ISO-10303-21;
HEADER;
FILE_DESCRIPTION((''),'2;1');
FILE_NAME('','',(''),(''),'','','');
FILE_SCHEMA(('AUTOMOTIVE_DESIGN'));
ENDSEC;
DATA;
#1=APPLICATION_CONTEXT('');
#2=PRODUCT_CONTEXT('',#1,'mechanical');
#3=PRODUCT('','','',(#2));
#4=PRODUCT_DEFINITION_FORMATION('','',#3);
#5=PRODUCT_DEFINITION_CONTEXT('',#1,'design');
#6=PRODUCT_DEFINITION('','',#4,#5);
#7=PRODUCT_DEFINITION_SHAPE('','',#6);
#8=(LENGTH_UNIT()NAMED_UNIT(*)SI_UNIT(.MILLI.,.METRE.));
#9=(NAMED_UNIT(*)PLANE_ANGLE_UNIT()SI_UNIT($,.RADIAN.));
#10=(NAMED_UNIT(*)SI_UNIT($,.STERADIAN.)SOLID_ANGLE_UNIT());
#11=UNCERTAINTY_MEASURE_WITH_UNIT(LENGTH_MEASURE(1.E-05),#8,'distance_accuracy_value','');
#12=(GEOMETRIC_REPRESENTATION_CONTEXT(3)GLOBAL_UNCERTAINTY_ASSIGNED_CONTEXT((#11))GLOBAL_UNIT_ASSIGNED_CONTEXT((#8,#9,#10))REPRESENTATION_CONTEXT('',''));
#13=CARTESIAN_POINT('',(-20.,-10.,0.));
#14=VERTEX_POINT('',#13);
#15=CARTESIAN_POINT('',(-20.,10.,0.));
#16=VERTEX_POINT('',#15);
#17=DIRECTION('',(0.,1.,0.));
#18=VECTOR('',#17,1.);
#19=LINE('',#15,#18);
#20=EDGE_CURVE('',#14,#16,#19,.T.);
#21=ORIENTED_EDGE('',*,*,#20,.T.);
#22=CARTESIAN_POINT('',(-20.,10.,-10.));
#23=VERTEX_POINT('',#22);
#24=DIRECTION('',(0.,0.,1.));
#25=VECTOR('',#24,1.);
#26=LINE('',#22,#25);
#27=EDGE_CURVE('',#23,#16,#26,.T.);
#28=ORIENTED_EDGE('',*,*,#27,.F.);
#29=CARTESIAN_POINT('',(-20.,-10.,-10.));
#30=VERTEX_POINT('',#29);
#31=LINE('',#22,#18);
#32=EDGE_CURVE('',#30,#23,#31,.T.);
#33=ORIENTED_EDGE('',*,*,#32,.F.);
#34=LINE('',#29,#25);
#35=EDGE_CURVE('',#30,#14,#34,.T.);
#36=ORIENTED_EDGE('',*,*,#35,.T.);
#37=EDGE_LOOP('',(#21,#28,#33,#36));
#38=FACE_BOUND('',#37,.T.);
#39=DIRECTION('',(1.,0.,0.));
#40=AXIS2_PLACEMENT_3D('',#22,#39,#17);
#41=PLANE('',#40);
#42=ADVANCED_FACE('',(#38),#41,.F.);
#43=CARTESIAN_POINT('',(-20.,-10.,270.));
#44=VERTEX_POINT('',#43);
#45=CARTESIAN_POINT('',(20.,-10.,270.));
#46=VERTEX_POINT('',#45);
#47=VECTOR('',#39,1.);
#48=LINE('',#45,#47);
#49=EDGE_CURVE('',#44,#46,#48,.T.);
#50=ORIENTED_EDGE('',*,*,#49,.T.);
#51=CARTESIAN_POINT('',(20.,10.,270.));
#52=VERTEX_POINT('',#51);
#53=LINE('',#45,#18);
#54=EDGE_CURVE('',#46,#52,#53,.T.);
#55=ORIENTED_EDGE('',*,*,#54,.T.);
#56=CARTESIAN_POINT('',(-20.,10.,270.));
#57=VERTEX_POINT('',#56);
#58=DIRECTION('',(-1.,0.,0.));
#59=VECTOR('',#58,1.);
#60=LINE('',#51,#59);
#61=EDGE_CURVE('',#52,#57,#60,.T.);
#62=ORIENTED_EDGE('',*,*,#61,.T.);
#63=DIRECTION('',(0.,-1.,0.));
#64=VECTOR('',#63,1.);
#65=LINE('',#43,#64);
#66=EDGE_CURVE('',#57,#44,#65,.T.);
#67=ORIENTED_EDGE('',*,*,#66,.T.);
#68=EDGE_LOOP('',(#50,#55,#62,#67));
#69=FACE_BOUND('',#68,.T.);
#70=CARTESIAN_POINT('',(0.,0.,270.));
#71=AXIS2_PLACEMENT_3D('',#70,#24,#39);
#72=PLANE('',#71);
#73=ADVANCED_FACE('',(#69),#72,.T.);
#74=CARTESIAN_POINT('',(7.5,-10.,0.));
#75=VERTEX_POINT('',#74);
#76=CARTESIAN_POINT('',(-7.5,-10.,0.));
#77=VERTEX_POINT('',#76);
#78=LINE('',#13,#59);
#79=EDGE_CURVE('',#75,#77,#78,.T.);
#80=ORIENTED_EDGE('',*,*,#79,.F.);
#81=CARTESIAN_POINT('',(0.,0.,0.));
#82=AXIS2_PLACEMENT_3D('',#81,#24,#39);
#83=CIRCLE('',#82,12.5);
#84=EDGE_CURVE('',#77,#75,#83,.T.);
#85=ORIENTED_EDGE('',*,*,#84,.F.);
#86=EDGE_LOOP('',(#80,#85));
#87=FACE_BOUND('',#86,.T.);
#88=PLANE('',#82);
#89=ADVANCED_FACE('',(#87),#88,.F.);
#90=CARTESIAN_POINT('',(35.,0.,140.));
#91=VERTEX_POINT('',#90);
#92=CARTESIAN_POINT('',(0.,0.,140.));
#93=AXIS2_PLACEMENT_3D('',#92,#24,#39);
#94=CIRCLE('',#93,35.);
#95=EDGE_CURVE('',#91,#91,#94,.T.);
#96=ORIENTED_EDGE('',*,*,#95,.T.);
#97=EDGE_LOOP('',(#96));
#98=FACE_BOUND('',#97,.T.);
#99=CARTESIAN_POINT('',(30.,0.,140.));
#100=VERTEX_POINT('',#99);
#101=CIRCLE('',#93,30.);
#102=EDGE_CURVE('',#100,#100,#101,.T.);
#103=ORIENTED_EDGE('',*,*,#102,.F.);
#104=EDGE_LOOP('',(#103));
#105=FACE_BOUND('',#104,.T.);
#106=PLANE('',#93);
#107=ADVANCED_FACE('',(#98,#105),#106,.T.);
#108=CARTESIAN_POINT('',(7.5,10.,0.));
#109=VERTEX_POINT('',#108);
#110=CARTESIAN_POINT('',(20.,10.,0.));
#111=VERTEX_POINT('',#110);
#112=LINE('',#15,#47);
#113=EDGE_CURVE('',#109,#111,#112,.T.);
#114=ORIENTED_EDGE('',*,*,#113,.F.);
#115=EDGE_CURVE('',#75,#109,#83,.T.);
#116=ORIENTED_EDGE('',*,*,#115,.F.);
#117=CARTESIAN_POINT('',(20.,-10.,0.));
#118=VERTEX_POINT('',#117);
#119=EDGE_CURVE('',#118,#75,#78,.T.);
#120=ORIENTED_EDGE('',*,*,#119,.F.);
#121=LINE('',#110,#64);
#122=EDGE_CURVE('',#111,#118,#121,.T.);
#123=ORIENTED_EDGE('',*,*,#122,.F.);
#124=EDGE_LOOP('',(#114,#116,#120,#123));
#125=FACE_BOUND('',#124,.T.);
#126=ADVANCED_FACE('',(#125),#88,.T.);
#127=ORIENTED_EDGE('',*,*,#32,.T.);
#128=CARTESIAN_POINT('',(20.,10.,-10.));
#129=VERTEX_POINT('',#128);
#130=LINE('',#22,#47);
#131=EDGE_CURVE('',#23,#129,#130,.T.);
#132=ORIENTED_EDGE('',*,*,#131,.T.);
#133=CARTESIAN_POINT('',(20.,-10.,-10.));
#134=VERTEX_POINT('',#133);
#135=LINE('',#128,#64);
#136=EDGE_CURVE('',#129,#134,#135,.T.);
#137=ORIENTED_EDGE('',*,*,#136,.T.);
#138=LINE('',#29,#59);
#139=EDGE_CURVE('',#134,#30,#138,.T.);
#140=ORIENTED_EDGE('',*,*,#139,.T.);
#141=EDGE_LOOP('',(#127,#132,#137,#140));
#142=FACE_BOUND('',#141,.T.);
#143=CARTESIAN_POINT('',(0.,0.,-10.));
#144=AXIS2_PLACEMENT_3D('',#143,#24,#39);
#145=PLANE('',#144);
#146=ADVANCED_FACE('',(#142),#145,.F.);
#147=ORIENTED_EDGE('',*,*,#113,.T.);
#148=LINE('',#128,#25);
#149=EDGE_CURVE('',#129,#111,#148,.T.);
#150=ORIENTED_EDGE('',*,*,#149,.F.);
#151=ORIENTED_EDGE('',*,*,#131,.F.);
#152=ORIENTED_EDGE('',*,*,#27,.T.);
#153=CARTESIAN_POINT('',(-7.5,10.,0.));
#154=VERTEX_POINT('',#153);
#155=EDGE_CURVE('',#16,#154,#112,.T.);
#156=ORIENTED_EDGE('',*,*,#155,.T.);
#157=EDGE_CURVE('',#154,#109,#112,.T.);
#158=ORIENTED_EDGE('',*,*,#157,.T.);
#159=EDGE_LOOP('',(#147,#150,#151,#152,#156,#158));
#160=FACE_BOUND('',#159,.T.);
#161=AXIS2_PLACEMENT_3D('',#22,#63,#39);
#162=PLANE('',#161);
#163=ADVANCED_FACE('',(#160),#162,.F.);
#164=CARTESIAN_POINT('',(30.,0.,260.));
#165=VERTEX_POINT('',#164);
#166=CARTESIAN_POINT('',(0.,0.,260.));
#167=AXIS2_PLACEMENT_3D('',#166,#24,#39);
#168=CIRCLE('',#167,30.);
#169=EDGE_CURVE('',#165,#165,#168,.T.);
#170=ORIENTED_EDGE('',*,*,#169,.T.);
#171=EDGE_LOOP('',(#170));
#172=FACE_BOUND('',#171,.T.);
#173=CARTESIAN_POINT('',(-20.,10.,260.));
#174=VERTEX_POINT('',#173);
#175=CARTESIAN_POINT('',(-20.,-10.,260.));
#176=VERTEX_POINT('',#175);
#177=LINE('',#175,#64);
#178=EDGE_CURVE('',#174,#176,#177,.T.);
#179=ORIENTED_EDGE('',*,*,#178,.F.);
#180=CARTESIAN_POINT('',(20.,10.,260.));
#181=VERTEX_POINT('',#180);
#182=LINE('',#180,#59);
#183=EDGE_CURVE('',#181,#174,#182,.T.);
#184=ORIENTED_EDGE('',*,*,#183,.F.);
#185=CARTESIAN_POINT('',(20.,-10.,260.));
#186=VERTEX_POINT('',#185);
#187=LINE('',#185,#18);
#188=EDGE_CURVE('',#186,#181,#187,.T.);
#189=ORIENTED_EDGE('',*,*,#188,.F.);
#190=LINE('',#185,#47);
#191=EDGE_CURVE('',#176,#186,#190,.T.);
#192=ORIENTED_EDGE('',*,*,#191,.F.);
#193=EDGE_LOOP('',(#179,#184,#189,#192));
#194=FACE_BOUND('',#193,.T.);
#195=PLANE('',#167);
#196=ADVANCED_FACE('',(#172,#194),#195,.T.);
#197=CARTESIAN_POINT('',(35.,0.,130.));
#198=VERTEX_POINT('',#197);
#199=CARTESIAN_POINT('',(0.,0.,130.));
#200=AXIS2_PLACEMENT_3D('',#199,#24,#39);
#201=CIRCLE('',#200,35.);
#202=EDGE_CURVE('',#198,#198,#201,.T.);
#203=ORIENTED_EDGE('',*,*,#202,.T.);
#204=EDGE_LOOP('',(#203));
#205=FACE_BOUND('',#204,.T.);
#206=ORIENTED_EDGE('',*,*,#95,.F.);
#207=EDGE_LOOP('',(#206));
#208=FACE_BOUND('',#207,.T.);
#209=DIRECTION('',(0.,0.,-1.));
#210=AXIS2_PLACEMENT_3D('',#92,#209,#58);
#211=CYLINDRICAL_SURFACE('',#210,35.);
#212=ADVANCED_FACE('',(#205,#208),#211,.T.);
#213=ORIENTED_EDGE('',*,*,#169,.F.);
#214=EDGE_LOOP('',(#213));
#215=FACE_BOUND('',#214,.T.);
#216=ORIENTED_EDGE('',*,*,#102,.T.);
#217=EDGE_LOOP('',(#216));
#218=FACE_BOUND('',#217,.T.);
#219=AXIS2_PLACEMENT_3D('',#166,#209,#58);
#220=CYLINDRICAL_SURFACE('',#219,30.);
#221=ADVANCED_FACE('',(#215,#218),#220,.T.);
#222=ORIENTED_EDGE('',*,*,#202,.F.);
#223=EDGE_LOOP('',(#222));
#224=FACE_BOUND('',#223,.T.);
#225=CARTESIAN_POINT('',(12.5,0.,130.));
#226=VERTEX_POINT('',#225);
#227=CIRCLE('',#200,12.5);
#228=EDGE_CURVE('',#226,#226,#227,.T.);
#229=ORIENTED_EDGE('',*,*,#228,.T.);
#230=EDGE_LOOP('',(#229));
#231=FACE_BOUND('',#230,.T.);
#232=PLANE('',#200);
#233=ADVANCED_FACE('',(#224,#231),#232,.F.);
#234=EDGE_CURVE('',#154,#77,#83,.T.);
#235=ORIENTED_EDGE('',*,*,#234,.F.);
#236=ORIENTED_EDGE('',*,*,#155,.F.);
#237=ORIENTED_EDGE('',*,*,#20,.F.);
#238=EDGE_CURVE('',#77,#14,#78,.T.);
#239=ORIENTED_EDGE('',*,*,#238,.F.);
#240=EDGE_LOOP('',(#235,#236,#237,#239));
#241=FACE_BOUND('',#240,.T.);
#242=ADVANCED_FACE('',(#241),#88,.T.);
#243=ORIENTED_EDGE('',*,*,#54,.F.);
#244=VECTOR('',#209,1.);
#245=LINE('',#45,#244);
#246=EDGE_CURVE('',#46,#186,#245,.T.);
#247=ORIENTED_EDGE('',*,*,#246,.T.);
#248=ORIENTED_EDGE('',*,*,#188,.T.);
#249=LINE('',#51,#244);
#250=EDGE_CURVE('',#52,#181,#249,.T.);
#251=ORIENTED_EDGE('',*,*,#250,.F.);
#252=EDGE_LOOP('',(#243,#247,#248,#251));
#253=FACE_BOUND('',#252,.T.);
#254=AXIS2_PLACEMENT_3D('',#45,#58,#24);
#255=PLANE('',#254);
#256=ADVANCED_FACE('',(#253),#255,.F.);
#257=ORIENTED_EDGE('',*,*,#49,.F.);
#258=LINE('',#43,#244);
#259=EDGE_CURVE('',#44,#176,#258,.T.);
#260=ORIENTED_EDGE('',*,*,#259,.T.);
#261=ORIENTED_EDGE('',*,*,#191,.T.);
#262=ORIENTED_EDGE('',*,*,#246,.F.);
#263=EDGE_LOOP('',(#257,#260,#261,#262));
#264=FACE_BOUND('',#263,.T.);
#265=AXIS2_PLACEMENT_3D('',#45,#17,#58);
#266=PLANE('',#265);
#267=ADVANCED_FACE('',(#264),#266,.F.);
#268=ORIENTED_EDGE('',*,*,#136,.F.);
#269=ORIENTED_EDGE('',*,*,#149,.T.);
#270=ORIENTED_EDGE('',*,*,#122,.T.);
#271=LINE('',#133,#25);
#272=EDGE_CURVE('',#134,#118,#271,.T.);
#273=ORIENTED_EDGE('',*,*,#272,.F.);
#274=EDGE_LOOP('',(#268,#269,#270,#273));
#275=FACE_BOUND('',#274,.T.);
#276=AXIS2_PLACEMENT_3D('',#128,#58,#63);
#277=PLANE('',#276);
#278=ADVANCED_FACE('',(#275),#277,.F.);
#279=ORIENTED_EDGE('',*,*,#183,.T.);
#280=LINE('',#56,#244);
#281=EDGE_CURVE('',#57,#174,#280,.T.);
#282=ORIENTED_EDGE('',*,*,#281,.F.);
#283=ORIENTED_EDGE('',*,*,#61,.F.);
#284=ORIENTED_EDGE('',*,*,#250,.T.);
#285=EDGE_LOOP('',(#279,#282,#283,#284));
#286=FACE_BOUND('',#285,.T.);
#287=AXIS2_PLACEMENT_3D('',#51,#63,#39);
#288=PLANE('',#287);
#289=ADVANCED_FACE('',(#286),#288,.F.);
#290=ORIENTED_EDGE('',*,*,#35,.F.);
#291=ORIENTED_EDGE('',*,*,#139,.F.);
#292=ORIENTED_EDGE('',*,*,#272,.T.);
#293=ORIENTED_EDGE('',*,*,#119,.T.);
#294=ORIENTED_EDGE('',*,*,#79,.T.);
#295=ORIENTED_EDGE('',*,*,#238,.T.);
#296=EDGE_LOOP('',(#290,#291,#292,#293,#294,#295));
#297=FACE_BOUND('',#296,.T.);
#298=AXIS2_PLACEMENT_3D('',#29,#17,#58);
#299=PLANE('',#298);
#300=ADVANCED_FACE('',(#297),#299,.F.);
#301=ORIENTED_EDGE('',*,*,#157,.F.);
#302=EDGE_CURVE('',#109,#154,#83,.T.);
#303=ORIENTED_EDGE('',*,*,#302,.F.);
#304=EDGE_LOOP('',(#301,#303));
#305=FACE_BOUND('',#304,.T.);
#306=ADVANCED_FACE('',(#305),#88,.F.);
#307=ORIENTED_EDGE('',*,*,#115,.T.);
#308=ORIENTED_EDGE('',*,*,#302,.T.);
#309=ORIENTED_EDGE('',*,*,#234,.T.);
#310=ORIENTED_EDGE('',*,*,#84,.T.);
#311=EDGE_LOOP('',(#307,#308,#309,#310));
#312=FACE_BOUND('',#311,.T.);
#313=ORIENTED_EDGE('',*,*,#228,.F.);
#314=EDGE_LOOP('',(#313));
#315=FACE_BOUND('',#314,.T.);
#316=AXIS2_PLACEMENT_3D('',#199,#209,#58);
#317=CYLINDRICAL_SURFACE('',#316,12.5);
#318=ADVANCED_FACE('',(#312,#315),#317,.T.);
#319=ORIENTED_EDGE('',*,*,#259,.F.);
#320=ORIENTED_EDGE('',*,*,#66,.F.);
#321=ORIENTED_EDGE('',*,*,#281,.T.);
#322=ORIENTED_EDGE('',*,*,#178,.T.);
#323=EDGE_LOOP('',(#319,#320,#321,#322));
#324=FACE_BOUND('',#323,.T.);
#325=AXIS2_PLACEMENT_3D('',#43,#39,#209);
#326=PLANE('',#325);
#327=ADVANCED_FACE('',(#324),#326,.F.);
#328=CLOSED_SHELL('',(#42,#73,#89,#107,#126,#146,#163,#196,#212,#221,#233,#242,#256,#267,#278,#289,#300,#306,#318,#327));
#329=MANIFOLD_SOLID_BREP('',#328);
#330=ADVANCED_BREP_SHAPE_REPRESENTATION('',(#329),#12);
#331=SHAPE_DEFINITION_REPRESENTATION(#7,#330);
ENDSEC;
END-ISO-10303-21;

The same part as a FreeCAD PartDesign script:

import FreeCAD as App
import Part
import Sketcher
from FreeCAD import Vector


def add_polygon(sketch, points):
    """Adds a closed chain of lines whose ends are joined by coincident constraints."""
    first, n = sketch.GeometryCount, len(points)
    for a, b in zip(points, points[1:] + points[:1]):
        sketch.addGeometry(Part.LineSegment(App.Vector(*a, 0), App.Vector(*b, 0)), False)
    for i in range(n):
        sketch.addConstraint(Sketcher.Constraint("Coincident", first + i, 2, first + (i + 1) % n, 1))

doc = App.newDocument("Part")
body = doc.addObject("PartDesign::Body", "Body")

sketch1 = doc.addObject("Sketcher::SketchObject", "Sketch")
body.addObject(sketch1)
sketch1.AttachmentSupport = (doc.XY_Plane, [""])
sketch1.MapMode = "FlatFace"
sketch1.addGeometry(Part.Circle(Vector(0, 0, 0), Vector(0, 0, 1), 12.5), False)
sketch1.addConstraint([
    Sketcher.Constraint("Coincident", 0, 3, -1, 1),
    Sketcher.Constraint("Diameter", 0, 25.0),
])
pad1 = doc.addObject("PartDesign::Pad", "Pad")
body.addObject(pad1)
pad1.Profile = sketch1
pad1.Length = 130

sketch2 = doc.addObject("Sketcher::SketchObject", "Sketch001")
body.addObject(sketch2)
sketch2.AttachmentSupport = (doc.XY_Plane, [""])
sketch2.MapMode = "FlatFace"
sketch2.AttachmentOffset = App.Placement(Vector(0, 0, 130), App.Rotation())
sketch2.addGeometry(Part.Circle(Vector(0, 0, 0), Vector(0, 0, 1), 35), False)
sketch2.addConstraint([
    Sketcher.Constraint("Coincident", 0, 3, -1, 1),
    Sketcher.Constraint("Diameter", 0, 70.0),
])
pad2 = doc.addObject("PartDesign::Pad", "Pad001")
body.addObject(pad2)
pad2.Profile = sketch2
pad2.Length = 10

sketch3 = doc.addObject("Sketcher::SketchObject", "Sketch002")
body.addObject(sketch3)
sketch3.AttachmentSupport = (doc.XY_Plane, [""])
sketch3.MapMode = "FlatFace"
sketch3.AttachmentOffset = App.Placement(Vector(0, 0, 140), App.Rotation())
sketch3.addGeometry(Part.Circle(Vector(0, 0, 0), Vector(0, 0, 1), 30), False)
sketch3.addConstraint([
    Sketcher.Constraint("Coincident", 0, 3, -1, 1),
    Sketcher.Constraint("Diameter", 0, 60.0),
])
pad3 = doc.addObject("PartDesign::Pad", "Pad002")
body.addObject(pad3)
pad3.Profile = sketch3
pad3.Length = 120

sketch4 = doc.addObject("Sketcher::SketchObject", "Sketch003")
body.addObject(sketch4)
sketch4.AttachmentSupport = (doc.XY_Plane, [""])
sketch4.MapMode = "FlatFace"
add_polygon(sketch4, [(20, 10), (20, -10), (-20, -10), (-20, 10)])
sketch4.addConstraint([
    Sketcher.Constraint("Vertical", 0),
    Sketcher.Constraint("Horizontal", 1),
    Sketcher.Constraint("Vertical", 2),
    Sketcher.Constraint("Horizontal", 3),
    Sketcher.Constraint("Symmetric", 0, 2, 2, 2, -1, 1),
    Sketcher.Constraint("DistanceX", 1, 2, 1, 1, 40.0),
    Sketcher.Constraint("DistanceY", 0, 2, 0, 1, 20.0),
])
pad4 = doc.addObject("PartDesign::Pad", "Pad003")
body.addObject(pad4)
pad4.Profile = sketch4
pad4.Length = 10
pad4.Reversed = True

sketch5 = doc.addObject("Sketcher::SketchObject", "Sketch004")
body.addObject(sketch5)
sketch5.AttachmentSupport = (doc.XY_Plane, [""])
sketch5.MapMode = "FlatFace"
sketch5.AttachmentOffset = App.Placement(Vector(0, 0, 260), App.Rotation())
add_polygon(sketch5, [(-20, 10), (-20, -10), (20, -10), (20, 10)])
sketch5.addConstraint([
    Sketcher.Constraint("Vertical", 0),
    Sketcher.Constraint("Horizontal", 1),
    Sketcher.Constraint("Vertical", 2),
    Sketcher.Constraint("Horizontal", 3),
    Sketcher.Constraint("Symmetric", 0, 2, 2, 2, -1, 1),
    Sketcher.Constraint("DistanceX", 1, 1, 1, 2, 40.0),
    Sketcher.Constraint("DistanceY", 0, 2, 0, 1, 20.0),
])
pad5 = doc.addObject("PartDesign::Pad", "Pad004")
body.addObject(pad5)
pad5.Profile = sketch5
pad5.Length = 10

doc.recompute()
